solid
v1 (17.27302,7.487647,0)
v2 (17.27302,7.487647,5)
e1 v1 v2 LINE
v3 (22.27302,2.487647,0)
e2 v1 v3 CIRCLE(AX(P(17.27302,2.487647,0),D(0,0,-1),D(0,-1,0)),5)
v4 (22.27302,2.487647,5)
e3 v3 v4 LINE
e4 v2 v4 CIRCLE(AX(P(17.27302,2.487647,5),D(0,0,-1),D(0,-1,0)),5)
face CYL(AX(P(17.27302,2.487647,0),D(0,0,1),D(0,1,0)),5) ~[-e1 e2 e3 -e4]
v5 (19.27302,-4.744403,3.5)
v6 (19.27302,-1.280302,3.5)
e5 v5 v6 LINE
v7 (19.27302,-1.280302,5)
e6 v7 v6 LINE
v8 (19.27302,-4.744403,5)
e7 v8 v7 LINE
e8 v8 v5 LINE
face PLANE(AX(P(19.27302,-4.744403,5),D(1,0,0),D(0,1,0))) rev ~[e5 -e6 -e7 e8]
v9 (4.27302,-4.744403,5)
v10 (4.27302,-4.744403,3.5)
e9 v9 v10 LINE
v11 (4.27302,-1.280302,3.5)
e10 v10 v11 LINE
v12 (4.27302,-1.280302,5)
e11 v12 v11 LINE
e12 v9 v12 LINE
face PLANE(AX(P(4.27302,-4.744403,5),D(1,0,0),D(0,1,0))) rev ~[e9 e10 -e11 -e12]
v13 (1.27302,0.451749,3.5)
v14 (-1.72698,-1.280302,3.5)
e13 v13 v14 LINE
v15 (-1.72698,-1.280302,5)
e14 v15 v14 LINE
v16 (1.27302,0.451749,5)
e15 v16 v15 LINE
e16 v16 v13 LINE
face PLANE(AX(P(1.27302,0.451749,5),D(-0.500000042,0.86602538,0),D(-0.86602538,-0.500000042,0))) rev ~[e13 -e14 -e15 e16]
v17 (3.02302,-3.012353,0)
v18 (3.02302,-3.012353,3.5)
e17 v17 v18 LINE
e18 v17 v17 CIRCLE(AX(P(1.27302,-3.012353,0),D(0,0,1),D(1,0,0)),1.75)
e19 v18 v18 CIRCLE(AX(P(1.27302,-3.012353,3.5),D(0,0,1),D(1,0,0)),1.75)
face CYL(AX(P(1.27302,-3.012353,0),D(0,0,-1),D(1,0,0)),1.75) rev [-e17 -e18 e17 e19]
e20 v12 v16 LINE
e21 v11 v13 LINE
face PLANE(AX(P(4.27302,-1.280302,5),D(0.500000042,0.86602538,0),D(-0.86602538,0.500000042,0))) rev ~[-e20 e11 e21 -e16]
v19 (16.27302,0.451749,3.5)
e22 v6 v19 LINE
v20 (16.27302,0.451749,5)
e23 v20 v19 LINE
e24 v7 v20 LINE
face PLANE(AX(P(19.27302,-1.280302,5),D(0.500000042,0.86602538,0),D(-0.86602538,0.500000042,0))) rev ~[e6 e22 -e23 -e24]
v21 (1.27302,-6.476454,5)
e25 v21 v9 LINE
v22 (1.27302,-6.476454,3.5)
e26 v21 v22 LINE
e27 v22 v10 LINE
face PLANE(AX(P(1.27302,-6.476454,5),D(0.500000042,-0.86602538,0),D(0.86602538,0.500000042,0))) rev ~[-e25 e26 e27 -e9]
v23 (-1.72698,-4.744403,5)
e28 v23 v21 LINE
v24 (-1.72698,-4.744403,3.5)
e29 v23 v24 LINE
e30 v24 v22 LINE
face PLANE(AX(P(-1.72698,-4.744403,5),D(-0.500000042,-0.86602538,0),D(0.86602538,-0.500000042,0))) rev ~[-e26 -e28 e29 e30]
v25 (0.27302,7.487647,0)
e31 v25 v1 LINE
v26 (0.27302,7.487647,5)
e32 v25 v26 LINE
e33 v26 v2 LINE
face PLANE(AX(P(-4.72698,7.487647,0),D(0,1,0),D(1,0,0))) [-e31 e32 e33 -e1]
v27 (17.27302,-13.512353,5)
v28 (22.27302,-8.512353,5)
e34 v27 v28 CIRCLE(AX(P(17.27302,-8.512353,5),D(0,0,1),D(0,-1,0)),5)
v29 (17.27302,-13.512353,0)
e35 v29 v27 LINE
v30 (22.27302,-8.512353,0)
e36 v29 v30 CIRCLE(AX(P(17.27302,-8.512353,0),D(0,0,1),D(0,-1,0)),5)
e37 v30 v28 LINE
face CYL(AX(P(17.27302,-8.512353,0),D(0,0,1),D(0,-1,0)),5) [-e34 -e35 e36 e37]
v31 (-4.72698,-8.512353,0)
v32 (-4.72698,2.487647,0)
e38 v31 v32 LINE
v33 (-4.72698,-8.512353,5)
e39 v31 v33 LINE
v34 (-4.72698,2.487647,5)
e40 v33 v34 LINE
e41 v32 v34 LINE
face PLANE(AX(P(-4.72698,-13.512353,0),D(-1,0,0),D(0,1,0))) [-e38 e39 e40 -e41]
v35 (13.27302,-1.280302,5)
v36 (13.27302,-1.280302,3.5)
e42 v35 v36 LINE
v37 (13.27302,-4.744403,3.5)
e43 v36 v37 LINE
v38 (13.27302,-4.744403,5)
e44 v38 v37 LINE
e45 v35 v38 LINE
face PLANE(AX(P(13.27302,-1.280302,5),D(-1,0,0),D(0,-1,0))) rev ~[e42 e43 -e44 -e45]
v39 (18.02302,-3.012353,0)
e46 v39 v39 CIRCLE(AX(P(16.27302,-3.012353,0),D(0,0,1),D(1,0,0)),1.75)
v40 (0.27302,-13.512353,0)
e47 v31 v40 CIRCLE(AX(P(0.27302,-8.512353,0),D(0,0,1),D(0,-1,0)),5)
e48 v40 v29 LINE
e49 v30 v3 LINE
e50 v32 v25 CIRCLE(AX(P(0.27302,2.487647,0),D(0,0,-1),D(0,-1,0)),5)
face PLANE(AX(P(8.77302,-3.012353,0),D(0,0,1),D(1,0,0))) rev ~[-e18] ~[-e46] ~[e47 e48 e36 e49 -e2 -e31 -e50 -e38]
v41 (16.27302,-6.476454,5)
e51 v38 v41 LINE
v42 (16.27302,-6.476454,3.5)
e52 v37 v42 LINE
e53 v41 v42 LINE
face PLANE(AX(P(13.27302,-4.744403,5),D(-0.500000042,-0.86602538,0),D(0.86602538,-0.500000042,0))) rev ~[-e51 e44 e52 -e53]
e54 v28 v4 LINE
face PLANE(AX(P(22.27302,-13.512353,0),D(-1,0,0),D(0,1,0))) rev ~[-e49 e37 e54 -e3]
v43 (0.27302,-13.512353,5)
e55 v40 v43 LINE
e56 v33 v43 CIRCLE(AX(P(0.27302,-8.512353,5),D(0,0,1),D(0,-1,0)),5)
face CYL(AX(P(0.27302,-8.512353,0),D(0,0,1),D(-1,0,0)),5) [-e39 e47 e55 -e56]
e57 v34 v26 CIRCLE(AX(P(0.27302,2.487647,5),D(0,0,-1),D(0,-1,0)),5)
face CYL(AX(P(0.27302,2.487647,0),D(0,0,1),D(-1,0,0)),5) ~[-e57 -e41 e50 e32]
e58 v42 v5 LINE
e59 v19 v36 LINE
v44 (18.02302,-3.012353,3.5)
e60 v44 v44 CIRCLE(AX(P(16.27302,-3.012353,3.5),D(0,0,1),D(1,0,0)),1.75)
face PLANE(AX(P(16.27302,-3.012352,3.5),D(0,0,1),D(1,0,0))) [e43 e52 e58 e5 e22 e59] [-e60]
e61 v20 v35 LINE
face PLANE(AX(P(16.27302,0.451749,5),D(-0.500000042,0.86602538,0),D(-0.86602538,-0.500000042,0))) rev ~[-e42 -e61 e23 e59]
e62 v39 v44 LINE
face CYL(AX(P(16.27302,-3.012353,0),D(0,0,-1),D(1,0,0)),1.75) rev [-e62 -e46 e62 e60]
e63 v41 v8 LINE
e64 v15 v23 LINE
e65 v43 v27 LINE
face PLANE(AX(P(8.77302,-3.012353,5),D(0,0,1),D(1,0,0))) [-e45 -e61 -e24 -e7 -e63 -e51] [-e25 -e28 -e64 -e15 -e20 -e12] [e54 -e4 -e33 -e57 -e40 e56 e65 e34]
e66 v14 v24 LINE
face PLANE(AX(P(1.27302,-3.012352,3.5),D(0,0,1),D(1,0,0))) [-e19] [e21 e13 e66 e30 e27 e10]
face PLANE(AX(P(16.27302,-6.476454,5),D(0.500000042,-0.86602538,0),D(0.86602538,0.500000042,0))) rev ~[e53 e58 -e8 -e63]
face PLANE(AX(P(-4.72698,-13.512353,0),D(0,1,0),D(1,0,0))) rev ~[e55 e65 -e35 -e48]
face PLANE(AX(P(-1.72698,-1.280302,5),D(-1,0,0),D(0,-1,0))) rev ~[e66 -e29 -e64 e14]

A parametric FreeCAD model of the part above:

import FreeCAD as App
import Part
import Sketcher
from FreeCAD import Vector
Q = App.Units.Quantity


def edges_at(feature, points):
    """Names of the edges that pass closest to the given points."""
    edges = feature.Shape.Edges
    near = lambda p: min(range(len(edges)), key=lambda i: edges[i].distToShape(Part.Vertex(*p))[0])
    return sorted({f"Edge{near(p) + 1}" for p in points})


def add_polygon(sketch, points):
    """Adds a closed chain of lines whose ends are joined by coincident constraints."""
    first, n = sketch.GeometryCount, len(points)
    for a, b in zip(points, points[1:] + points[:1]):
        sketch.addGeometry(Part.LineSegment(App.Vector(*a, 0), App.Vector(*b, 0)), False)
    for i in range(n):
        sketch.addConstraint(Sketcher.Constraint("Coincident", first + i, 2, first + (i + 1) % n, 1))

doc = App.newDocument("Part")
body = doc.addObject("PartDesign::Body", "Body")

sketch1 = body.newObject("Sketcher::SketchObject", "Sketch")
sketch1.AttachmentSupport = (doc.getObject("XY_Plane"), [""])
sketch1.MapMode = "FlatFace"
add_polygon(sketch1, [(-4.7, 7.5), (-4.7, -13.5), (22.3, -13.5), (22.3, 7.5)])
sketch1.addGeometry(Part.Circle(Vector(1.3, -3, 0), Vector(0, 0, 1), 1.8), False)
sketch1.addGeometry(Part.Circle(Vector(16.3, -3, 0), Vector(0, 0, 1), 1.8), False)
sketch1.addConstraint([
    Sketcher.Constraint("Vertical", 0),
    Sketcher.Constraint("Horizontal", 1),
    Sketcher.Constraint("Vertical", 2),
    Sketcher.Constraint("Horizontal", 3),
    Sketcher.Constraint("Equal", 4, 5),
    Sketcher.Constraint("Horizontal", 4, 3, 5, 3),
    Sketcher.Constraint("Diameter", 4, Q("3.5 mm")),
    Sketcher.Constraint("DistanceX", 1, 1, 1, 2, Q("27 mm")),
    Sketcher.Constraint("DistanceY", 0, 2, 0, 1, Q("21 mm")),
    Sketcher.Constraint("DistanceX", 4, 3, 5, 3, Q("15 mm")),
    Sketcher.Constraint("DistanceX", 0, 2, 4, 3, Q("6 mm")),
    Sketcher.Constraint("DistanceY", 0, 2, 4, 3, Q("10.5 mm")),
    Sketcher.Constraint("DistanceX", -1, 1, 4, 3, Q("1.27302 mm")),
    Sketcher.Constraint("DistanceY", 4, 3, -1, 1, Q("3.012353 mm")),
])
pad1 = body.newObject("PartDesign::Pad", "Pad")
pad1.Profile = sketch1
pad1.Length = 5
doc.recompute()

fillet = body.newObject("PartDesign::Fillet", "Fillet")
fillet.Base = (pad1, edges_at(pad1, [
    (-4.727, -13.512, 2.5),
    (22.273, -13.512, 2.5),
    (22.273, 7.488, 2.5),
    (-4.727, 7.488, 2.5),
]))
fillet.Radius = 5

sketch2 = body.newObject("Sketcher::SketchObject", "Sketch001")
sketch2.AttachmentSupport = (doc.getObject("XY_Plane"), [""])
sketch2.MapMode = "FlatFace"
sketch2.AttachmentOffset = App.Placement(Vector(0, 0, 5), App.Rotation())
add_polygon(sketch2, [(4.3, -4.7), (4.3, -1.3), (1.3, 0.5), (-1.7, -1.3), (-1.7, -4.7), (1.3, -6.5)])
sketch2.addGeometry(Part.Circle(Vector(1.3, -3, 0), Vector(0, 0, 1), 1.8), False)
add_polygon(sketch2, [(19.3, -4.7), (19.3, -1.3), (16.3, 0.5), (13.3, -1.3), (13.3, -4.7), (16.3, -6.5)])
sketch2.addGeometry(Part.Circle(Vector(16.3, -3, 0), Vector(0, 0, 1), 1.8), False)
sketch2.addConstraint([
    Sketcher.Constraint("Vertical", 0),
    Sketcher.Constraint("Vertical", 3),
    Sketcher.Constraint("Vertical", 7),
    Sketcher.Constraint("Vertical", 10),
    Sketcher.Constraint("Equal", 6, 13),
    Sketcher.Constraint("Parallel", 1, 4),
    Sketcher.Constraint("Parallel", 2, 5),
    Sketcher.Constraint("Parallel", 4, 8),
    Sketcher.Constraint("Parallel", 5, 9),
    Sketcher.Constraint("Parallel", 8, 11),
    Sketcher.Constraint("Parallel", 9, 12),
    Sketcher.Constraint("Horizontal", 6, 3, 13, 3),
    Sketcher.Constraint("Horizontal", 0, 2, 2, 2),
    Sketcher.Constraint("Horizontal", 3, 2, 5, 2),
    Sketcher.Constraint("Horizontal", 2, 2, 7, 2),
    Sketcher.Constraint("Horizontal", 1, 2, 8, 2),
    Sketcher.Constraint("Horizontal", 7, 2, 9, 2),
    Sketcher.Constraint("Horizontal", 5, 2, 10, 2),
    Sketcher.Constraint("Horizontal", 4, 2, 11, 2),
    Sketcher.Constraint("Vertical", 6, 3, 1, 2),
    Sketcher.Constraint("Vertical", 1, 2, 4, 2),
    Sketcher.Constraint("Vertical", 13, 3, 8, 2),
    Sketcher.Constraint("Diameter", 6, Q("3.5 mm")),
    Sketcher.Constraint("Angle", 1, Q("149.999997 deg")),
    Sketcher.Constraint("DistanceX", 6, 3, 13, 3, Q("15 mm")),
    Sketcher.Constraint("DistanceX", 6, 3, 0, 2, Q("3 mm")),
    Sketcher.Constraint("DistanceY", 0, 1, 0, 2, Q("3.464101 mm")),
    Sketcher.Constraint("DistanceY", 6, 3, 1, 2, Q("3.464102 mm")),
    Sketcher.Constraint("DistanceX", -1, 1, 6, 3, Q("1.27302 mm")),
    Sketcher.Constraint("DistanceY", -1, 1, 1, 2, Q("0.451749 mm")),
])
pocket1 = body.newObject("PartDesign::Pocket", "Pocket")
pocket1.Profile = sketch2
pocket1.Length = 1.5

doc.recompute()
